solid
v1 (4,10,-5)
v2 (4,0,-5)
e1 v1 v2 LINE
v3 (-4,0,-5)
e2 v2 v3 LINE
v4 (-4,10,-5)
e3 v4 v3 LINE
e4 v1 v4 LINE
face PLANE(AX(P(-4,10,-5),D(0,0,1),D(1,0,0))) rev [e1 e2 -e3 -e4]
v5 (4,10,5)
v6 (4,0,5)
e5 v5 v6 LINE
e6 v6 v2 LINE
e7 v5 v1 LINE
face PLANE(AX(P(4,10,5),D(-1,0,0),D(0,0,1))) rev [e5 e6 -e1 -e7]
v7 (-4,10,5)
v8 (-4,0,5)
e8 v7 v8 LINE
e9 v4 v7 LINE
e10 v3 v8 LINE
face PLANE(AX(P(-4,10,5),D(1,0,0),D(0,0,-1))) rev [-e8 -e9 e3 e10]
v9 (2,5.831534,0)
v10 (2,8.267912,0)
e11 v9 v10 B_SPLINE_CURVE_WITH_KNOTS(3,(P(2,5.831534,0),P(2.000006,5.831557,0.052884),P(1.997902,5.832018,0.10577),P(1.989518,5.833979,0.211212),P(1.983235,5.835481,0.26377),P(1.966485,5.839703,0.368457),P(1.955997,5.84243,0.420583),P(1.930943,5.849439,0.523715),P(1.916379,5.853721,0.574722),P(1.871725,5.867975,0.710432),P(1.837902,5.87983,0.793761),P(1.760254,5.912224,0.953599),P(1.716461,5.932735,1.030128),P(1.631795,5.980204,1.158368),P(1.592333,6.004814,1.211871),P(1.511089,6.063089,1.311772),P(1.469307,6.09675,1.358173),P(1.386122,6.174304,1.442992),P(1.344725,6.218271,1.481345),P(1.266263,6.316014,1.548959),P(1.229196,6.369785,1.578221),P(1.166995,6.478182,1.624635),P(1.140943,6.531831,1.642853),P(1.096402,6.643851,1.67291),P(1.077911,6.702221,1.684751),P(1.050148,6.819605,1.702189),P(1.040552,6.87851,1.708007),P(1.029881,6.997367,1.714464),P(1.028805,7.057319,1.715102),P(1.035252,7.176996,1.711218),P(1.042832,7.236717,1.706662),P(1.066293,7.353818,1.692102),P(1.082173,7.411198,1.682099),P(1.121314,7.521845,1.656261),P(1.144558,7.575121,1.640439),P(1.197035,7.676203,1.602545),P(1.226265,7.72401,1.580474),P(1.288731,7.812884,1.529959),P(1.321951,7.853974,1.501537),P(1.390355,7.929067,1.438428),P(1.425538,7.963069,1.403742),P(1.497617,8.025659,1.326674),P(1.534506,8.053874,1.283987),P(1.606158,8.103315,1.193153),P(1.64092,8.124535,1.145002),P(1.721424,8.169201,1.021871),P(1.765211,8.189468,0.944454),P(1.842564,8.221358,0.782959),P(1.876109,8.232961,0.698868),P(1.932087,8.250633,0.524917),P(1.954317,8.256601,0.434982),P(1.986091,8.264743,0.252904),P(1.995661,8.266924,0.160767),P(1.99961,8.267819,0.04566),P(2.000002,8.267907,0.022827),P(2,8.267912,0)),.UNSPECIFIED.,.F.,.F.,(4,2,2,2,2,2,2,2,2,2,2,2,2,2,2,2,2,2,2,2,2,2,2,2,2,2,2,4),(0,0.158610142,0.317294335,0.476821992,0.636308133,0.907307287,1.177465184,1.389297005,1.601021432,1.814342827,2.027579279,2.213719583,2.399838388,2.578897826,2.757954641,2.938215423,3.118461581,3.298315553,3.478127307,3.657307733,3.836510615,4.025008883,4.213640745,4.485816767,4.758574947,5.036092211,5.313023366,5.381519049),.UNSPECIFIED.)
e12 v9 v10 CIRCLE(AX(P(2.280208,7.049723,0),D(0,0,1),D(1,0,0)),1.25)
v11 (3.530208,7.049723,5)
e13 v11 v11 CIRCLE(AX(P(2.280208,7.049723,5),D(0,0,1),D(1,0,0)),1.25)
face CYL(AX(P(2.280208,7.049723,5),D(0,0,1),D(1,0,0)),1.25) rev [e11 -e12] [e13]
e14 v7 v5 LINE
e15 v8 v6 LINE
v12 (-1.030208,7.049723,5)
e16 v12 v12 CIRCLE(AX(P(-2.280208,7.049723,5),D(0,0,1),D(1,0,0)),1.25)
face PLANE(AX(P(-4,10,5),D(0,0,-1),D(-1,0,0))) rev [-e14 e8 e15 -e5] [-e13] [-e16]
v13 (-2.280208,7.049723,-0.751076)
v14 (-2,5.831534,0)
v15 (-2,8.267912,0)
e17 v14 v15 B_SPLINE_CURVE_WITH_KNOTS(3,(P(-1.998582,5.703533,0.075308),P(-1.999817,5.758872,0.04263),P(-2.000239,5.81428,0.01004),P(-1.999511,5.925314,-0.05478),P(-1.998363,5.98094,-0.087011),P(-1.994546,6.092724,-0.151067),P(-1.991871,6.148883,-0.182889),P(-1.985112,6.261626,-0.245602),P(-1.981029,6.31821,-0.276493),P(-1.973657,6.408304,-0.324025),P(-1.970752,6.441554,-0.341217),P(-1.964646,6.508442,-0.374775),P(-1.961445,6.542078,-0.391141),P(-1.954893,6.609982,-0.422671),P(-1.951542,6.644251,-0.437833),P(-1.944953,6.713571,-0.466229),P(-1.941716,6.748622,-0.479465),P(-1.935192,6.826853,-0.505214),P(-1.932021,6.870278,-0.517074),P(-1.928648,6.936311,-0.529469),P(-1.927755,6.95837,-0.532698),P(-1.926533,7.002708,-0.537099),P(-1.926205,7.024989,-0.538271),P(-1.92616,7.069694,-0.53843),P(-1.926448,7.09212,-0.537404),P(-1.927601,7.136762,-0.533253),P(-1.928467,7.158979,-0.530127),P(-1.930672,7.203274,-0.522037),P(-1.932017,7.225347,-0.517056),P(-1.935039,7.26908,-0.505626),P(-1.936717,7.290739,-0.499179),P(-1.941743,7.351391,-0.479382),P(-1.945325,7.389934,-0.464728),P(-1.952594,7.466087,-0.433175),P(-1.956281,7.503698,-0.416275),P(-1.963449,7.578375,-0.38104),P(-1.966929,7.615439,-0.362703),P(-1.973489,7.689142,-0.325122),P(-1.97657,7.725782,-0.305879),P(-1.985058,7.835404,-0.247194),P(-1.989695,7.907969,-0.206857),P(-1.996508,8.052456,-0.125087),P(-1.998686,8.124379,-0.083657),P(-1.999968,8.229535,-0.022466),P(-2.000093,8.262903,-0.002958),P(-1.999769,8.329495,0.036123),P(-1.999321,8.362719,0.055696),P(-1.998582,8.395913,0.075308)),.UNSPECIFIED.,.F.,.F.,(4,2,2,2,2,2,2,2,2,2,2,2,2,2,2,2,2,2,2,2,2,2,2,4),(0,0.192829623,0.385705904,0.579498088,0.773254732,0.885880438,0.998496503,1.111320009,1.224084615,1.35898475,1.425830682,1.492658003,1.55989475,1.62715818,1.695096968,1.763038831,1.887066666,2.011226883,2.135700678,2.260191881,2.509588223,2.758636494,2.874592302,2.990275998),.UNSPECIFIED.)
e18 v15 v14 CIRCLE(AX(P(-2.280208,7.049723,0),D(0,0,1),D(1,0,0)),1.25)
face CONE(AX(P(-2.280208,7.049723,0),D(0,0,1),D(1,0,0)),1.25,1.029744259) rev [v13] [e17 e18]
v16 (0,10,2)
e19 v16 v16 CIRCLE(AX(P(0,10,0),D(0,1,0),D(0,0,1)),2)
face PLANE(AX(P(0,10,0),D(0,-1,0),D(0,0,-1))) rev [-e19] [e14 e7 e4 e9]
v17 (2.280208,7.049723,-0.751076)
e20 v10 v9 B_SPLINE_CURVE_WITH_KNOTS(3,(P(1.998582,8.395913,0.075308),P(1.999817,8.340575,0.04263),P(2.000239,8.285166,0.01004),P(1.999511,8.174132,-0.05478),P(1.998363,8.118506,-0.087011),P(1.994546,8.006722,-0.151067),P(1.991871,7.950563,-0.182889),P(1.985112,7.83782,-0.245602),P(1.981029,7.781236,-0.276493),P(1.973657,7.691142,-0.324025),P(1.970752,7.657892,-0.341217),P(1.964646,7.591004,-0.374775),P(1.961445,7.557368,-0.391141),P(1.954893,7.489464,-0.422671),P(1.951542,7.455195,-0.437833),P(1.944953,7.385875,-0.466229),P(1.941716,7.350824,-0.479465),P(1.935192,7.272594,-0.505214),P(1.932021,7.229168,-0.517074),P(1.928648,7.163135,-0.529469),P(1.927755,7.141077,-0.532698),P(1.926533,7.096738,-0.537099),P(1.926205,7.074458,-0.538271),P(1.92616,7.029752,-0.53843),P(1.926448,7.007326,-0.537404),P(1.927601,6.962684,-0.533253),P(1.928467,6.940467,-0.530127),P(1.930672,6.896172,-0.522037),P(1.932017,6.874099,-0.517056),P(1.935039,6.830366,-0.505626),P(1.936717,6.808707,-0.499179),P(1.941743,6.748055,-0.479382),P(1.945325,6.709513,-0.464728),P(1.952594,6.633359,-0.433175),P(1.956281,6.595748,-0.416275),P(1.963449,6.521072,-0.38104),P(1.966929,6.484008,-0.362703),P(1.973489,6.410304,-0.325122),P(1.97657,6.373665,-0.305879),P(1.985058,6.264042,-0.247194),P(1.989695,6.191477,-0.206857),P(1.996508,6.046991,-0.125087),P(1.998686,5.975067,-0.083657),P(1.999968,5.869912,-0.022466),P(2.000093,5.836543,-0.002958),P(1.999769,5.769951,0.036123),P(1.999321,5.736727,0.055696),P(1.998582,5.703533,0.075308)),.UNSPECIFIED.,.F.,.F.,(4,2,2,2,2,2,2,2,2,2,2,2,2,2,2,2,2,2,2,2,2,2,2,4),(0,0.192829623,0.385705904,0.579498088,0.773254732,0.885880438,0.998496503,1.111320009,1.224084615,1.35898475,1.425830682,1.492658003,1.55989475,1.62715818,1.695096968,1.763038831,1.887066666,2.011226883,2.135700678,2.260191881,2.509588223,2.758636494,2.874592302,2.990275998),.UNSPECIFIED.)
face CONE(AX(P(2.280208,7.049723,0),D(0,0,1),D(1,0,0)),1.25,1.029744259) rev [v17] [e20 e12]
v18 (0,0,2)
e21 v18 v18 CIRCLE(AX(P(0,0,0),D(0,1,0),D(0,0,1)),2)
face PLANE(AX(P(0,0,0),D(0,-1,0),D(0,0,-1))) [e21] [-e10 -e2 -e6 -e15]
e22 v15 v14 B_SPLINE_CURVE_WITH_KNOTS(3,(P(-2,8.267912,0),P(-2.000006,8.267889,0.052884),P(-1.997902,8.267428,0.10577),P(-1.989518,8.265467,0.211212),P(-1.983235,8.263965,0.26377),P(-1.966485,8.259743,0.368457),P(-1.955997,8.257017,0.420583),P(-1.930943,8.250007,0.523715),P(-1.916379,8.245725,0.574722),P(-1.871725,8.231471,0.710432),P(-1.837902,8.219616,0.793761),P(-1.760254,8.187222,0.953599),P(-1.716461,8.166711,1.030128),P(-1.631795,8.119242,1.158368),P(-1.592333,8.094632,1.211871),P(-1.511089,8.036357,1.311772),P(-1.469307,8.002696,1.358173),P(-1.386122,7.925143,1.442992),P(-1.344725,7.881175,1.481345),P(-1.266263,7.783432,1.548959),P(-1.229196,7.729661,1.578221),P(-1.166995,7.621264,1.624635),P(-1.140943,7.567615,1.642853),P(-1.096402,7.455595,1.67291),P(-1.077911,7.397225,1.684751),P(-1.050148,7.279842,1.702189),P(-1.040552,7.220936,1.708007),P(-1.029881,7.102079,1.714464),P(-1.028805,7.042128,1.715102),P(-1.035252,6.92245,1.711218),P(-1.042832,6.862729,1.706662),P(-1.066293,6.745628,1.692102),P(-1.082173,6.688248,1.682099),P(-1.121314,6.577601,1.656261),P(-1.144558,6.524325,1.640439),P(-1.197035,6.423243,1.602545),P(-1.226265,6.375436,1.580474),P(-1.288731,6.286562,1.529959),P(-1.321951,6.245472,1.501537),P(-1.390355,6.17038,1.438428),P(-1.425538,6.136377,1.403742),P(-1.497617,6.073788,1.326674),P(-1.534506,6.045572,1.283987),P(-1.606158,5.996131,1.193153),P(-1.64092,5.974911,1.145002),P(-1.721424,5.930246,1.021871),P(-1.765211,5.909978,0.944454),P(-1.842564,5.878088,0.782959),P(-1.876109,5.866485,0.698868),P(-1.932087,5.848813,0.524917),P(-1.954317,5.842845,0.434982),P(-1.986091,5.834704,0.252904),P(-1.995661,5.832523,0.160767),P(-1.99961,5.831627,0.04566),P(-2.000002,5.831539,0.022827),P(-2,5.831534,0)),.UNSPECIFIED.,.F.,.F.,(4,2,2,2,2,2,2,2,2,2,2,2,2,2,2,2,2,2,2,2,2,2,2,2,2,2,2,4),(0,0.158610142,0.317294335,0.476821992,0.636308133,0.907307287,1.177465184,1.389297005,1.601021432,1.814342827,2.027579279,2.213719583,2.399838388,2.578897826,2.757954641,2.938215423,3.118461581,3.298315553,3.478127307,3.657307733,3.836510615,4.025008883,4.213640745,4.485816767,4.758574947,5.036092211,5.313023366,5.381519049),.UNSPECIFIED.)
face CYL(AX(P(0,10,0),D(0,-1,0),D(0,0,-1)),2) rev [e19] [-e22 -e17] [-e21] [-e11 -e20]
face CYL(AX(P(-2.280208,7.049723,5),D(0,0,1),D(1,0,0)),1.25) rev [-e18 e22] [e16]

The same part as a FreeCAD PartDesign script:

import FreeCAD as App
import Part
import Sketcher

V = App.Vector

doc = App.newDocument("Part")
body = doc.addObject("PartDesign::Body", "Body")

sketch1 = body.newObject("Sketcher::SketchObject", "Sketch")
sketch1.AttachmentSupport = (doc.getObject("XZ_Plane"), [""])
sketch1.MapMode = "FlatFace"
sketch1.addGeometry(Part.LineSegment(V(-4, -5, 0), V(-4, 5, 0)), False)
sketch1.addGeometry(Part.LineSegment(V(-4, 5, 0), V(4, 5, 0)), False)
sketch1.addGeometry(Part.LineSegment(V(4, 5, 0), V(4, -5, 0)), False)
sketch1.addGeometry(Part.LineSegment(V(4, -5, 0), V(-4, -5, 0)), False)
sketch1.addGeometry(Part.Circle(V(0, 0, 0), V(0, 0, 1), 2), False)
sketch1.addConstraint(Sketcher.Constraint("Coincident", 0, 2, 1, 1))
sketch1.addConstraint(Sketcher.Constraint("Coincident", 1, 2, 2, 1))
sketch1.addConstraint(Sketcher.Constraint("Coincident", 2, 2, 3, 1))
sketch1.addConstraint(Sketcher.Constraint("Coincident", 3, 2, 0, 1))
sketch1.addConstraint(Sketcher.Constraint("Vertical", 0))
sketch1.addConstraint(Sketcher.Constraint("Horizontal", 1))
sketch1.addConstraint(Sketcher.Constraint("Vertical", 2))
sketch1.addConstraint(Sketcher.Constraint("Horizontal", 3))
sketch1.addConstraint(Sketcher.Constraint("Coincident", 4, 3, -1, 1))
sketch1.addConstraint(Sketcher.Constraint("Symmetric", 0, 2, 2, 2, -1, 1))
sketch1.addConstraint(Sketcher.Constraint("Diameter", 4, 4.0))
sketch1.addConstraint(Sketcher.Constraint("DistanceX", 1, 1, 1, 2, 8.0))
sketch1.addConstraint(Sketcher.Constraint("DistanceY", 0, 1, 0, 2, 10.0))
pad1 = body.newObject("PartDesign::Pad", "Pad")
pad1.Profile = sketch1
pad1.Length = 10
pad1.Reversed = True

sketch2 = body.newObject("Sketcher::SketchObject", "Sketch001")
sketch2.AttachmentSupport = (doc.getObject("XY_Plane"), [""])
sketch2.MapMode = "FlatFace"
sketch2.AttachmentOffset = App.Placement(V(0, 0, 5), App.Rotation())
sketch2.addGeometry(Part.Circle(V(-2.280208, 7.049723, 0), V(0, 0, 1), 1.25), False)
sketch2.addGeometry(Part.Circle(V(2.280208, 7.049723, 0), V(0, 0, 1), 1.25), False)
sketch2.addConstraint(Sketcher.Constraint("Equal", 0, 1))
sketch2.addConstraint(Sketcher.Constraint("Symmetric", 0, 3, 1, 3, -2))
sketch2.addConstraint(Sketcher.Constraint("Diameter", 0, 2.5))
sketch2.addConstraint(Sketcher.Constraint("DistanceX", 0, 3, -1, 1, 2.280208))
sketch2.addConstraint(Sketcher.Constraint("DistanceY", -1, 1, 0, 3, 7.049723))
doc.recompute()
hole = body.newObject("PartDesign::Hole", "Hole")
hole.Profile = sketch2
hole.ThreadType = "None"
hole.Diameter = 2.5
hole.DepthType = "Dimension"
hole.Depth = 5
hole.DrillPoint = "Angled"
hole.DrillPointAngle = 118

doc.recompute()
